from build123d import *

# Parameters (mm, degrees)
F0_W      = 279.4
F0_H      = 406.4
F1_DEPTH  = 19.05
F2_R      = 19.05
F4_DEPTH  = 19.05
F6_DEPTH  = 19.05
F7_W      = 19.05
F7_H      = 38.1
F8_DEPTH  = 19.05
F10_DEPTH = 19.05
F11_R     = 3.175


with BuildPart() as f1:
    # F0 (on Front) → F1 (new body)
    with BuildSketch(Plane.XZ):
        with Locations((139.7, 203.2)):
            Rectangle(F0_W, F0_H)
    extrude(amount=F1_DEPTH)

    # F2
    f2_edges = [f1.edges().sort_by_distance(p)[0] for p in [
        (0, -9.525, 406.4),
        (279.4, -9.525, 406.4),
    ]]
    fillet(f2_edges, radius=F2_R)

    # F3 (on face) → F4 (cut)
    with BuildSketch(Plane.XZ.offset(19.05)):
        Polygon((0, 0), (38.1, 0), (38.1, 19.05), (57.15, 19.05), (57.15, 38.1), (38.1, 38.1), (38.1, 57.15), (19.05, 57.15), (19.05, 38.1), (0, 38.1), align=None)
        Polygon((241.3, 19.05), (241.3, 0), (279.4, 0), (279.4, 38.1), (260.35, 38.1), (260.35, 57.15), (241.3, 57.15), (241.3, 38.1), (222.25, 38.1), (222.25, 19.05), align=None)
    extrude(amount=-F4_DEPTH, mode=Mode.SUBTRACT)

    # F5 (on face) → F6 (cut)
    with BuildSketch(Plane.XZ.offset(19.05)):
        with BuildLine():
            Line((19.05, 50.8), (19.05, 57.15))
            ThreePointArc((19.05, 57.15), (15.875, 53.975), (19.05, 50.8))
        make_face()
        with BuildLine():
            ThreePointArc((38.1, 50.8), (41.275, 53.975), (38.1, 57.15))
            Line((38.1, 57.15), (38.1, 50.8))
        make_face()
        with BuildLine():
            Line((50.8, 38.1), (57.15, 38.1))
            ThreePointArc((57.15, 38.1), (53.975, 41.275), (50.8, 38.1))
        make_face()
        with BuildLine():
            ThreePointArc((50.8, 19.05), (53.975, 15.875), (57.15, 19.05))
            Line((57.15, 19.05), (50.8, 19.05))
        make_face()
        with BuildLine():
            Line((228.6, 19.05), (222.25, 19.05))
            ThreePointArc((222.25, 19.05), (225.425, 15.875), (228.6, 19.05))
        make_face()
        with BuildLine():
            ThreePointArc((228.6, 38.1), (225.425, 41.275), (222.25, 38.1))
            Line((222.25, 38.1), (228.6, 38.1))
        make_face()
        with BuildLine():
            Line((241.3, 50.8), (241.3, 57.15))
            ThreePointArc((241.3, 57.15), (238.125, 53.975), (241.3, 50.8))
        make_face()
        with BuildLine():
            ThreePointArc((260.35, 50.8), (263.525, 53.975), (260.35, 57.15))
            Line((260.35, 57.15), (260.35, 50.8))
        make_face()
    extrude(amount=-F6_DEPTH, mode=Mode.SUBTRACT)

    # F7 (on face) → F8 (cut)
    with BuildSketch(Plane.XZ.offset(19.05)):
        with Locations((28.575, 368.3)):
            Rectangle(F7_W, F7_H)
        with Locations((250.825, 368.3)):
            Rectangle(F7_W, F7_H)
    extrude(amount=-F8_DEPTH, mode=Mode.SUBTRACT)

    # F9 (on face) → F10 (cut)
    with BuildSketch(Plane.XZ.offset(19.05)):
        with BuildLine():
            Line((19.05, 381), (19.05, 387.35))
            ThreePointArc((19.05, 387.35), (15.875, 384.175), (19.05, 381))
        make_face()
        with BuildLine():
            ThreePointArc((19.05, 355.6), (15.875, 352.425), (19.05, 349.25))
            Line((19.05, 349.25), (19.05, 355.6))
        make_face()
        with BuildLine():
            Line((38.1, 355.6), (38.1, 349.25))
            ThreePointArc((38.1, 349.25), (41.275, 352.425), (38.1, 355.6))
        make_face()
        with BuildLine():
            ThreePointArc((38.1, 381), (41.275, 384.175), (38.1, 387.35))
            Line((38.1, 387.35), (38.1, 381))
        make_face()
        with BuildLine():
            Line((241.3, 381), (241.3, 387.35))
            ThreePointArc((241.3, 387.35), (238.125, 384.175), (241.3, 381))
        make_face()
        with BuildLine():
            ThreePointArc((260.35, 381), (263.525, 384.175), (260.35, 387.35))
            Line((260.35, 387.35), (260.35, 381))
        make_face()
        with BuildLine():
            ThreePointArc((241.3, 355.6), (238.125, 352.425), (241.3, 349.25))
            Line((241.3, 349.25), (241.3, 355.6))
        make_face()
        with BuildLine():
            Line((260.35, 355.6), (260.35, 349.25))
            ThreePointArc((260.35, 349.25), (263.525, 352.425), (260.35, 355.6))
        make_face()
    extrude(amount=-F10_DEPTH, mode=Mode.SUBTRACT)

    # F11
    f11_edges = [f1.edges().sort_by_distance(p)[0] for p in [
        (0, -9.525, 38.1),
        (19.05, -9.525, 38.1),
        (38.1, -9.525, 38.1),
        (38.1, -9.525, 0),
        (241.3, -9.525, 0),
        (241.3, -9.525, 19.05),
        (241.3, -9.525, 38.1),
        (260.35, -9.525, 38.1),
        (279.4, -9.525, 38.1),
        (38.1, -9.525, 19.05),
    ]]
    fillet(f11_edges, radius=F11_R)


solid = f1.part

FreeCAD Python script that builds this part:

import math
import FreeCAD as App
import Part
import Sketcher
Q = App.Units.Quantity


def edges_at(feature, points):
    """Names of the edges that pass closest to the given points."""
    edges = feature.Shape.Edges
    near = lambda p: min(range(len(edges)), key=lambda i: edges[i].distToShape(Part.Vertex(*p))[0])
    return sorted({f"Edge{near(p) + 1}" for p in points})

doc = App.newDocument("Part")
body = doc.addObject("PartDesign::Body", "Body")

sketch1 = body.newObject("Sketcher::SketchObject", "Sketch")
sketch1.AttachmentSupport = (doc.getObject("XZ_Plane"), [""])
sketch1.MapMode = "FlatFace"
sketch1.addGeometry(Part.LineSegment(App.Vector(0, 406, 0), App.Vector(0, 0, 0)), False)
sketch1.addGeometry(Part.LineSegment(App.Vector(0, 0, 0), App.Vector(279, 0, 0)), False)
sketch1.addGeometry(Part.LineSegment(App.Vector(279, 0, 0), App.Vector(279, 406, 0)), False)
sketch1.addGeometry(Part.LineSegment(App.Vector(279, 406, 0), App.Vector(0, 406, 0)), False)
sketch1.addConstraint(Sketcher.Constraint("Coincident", 0, 2, 1, 1))
sketch1.addConstraint(Sketcher.Constraint("Coincident", 1, 2, 2, 1))
sketch1.addConstraint(Sketcher.Constraint("Coincident", 2, 2, 3, 1))
sketch1.addConstraint(Sketcher.Constraint("Coincident", 3, 2, 0, 1))
sketch1.addConstraint(Sketcher.Constraint("Vertical", 0))
sketch1.addConstraint(Sketcher.Constraint("Horizontal", 1))
sketch1.addConstraint(Sketcher.Constraint("Vertical", 2))
sketch1.addConstraint(Sketcher.Constraint("Horizontal", 3))
sketch1.addConstraint(Sketcher.Constraint("Coincident", 0, 2, -1, 1))
sketch1.addConstraint(Sketcher.Constraint("DistanceX", 1, 1, 1, 2, Q("11 in")))
sketch1.addConstraint(Sketcher.Constraint("DistanceY", 0, 2, 0, 1, Q("16 in")))
pad1 = body.newObject("PartDesign::Pad", "Pad")
pad1.Profile = sketch1
pad1.Length = Q("0.75 in")
doc.recompute()

fillet = body.newObject("PartDesign::Fillet", "Fillet")
fillet.Base = (pad1, edges_at(pad1, [(0, -9.525, 406.4), (279.4, -9.525, 406.4)]))
fillet.Radius = Q("0.75 in")

sketch2 = body.newObject("Sketcher::SketchObject", "Sketch001")
sketch2.AttachmentSupport = (doc.getObject("XZ_Plane"), [""])
sketch2.MapMode = "FlatFace"
sketch2.AttachmentOffset = App.Placement(App.Vector(0, 0, 0.75 * 25.4), App.Rotation())
sketch2.addGeometry(Part.LineSegment(App.Vector(0, 0, 0), App.Vector(38, 0, 0)), False)
sketch2.addGeometry(Part.LineSegment(App.Vector(38, 0, 0), App.Vector(38, 19, 0)), False)
sketch2.addGeometry(Part.LineSegment(App.Vector(38, 19, 0), App.Vector(57, 19, 0)), False)
sketch2.addGeometry(Part.LineSegment(App.Vector(57, 19, 0), App.Vector(57, 38, 0)), False)
sketch2.addGeometry(Part.LineSegment(App.Vector(57, 38, 0), App.Vector(38, 38, 0)), False)
sketch2.addGeometry(Part.LineSegment(App.Vector(38, 38, 0), App.Vector(38, 57, 0)), False)
sketch2.addGeometry(Part.LineSegment(App.Vector(38, 57, 0), App.Vector(19, 57, 0)), False)
sketch2.addGeometry(Part.LineSegment(App.Vector(19, 57, 0), App.Vector(19, 38, 0)), False)
sketch2.addGeometry(Part.LineSegment(App.Vector(19, 38, 0), App.Vector(0, 38, 0)), False)
sketch2.addGeometry(Part.LineSegment(App.Vector(0, 38, 0), App.Vector(0, 0, 0)), False)
sketch2.addGeometry(Part.LineSegment(App.Vector(241, 19, 0), App.Vector(241, 0, 0)), False)
sketch2.addGeometry(Part.LineSegment(App.Vector(241, 0, 0), App.Vector(279, 0, 0)), False)
sketch2.addGeometry(Part.LineSegment(App.Vector(279, 0, 0), App.Vector(279, 38, 0)), False)
sketch2.addGeometry(Part.LineSegment(App.Vector(279, 38, 0), App.Vector(260, 38, 0)), False)
sketch2.addGeometry(Part.LineSegment(App.Vector(260, 38, 0), App.Vector(260, 57, 0)), False)
sketch2.addGeometry(Part.LineSegment(App.Vector(260, 57, 0), App.Vector(241, 57, 0)), False)
sketch2.addGeometry(Part.LineSegment(App.Vector(241, 57, 0), App.Vector(241, 38, 0)), False)
sketch2.addGeometry(Part.LineSegment(App.Vector(241, 38, 0), App.Vector(222, 38, 0)), False)
sketch2.addGeometry(Part.LineSegment(App.Vector(222, 38, 0), App.Vector(222, 19, 0)), False)
sketch2.addGeometry(Part.LineSegment(App.Vector(222, 19, 0), App.Vector(241, 19, 0)), False)
sketch2.addConstraint(Sketcher.Constraint("Coincident", 0, 2, 1, 1))
sketch2.addConstraint(Sketcher.Constraint("Coincident", 1, 2, 2, 1))
sketch2.addConstraint(Sketcher.Constraint("Coincident", 2, 2, 3, 1))
sketch2.addConstraint(Sketcher.Constraint("Coincident", 3, 2, 4, 1))
sketch2.addConstraint(Sketcher.Constraint("Coincident", 4, 2, 5, 1))
sketch2.addConstraint(Sketcher.Constraint("Coincident", 5, 2, 6, 1))
sketch2.addConstraint(Sketcher.Constraint("Coincident", 6, 2, 7, 1))
sketch2.addConstraint(Sketcher.Constraint("Coincident", 7, 2, 8, 1))
sketch2.addConstraint(Sketcher.Constraint("Coincident", 8, 2, 9, 1))
sketch2.addConstraint(Sketcher.Constraint("Coincident", 9, 2, 0, 1))
sketch2.addConstraint(Sketcher.Constraint("Coincident", 10, 2, 11, 1))
sketch2.addConstraint(Sketcher.Constraint("Coincident", 11, 2, 12, 1))
sketch2.addConstraint(Sketcher.Constraint("Coincident", 12, 2, 13, 1))
sketch2.addConstraint(Sketcher.Constraint("Coincident", 13, 2, 14, 1))
sketch2.addConstraint(Sketcher.Constraint("Coincident", 14, 2, 15, 1))
sketch2.addConstraint(Sketcher.Constraint("Coincident", 15, 2, 16, 1))
sketch2.addConstraint(Sketcher.Constraint("Coincident", 16, 2, 17, 1))
sketch2.addConstraint(Sketcher.Constraint("Coincident", 17, 2, 18, 1))
sketch2.addConstraint(Sketcher.Constraint("Coincident", 18, 2, 19, 1))
sketch2.addConstraint(Sketcher.Constraint("Coincident", 19, 2, 10, 1))
sketch2.addConstraint(Sketcher.Constraint("Horizontal", 0))
sketch2.addConstraint(Sketcher.Constraint("Vertical", 1))
sketch2.addConstraint(Sketcher.Constraint("Horizontal", 2))
sketch2.addConstraint(Sketcher.Constraint("Vertical", 3))
sketch2.addConstraint(Sketcher.Constraint("Horizontal", 4))
sketch2.addConstraint(Sketcher.Constraint("Vertical", 5))
sketch2.addConstraint(Sketcher.Constraint("Horizontal", 6))
sketch2.addConstraint(Sketcher.Constraint("Vertical", 7))
sketch2.addConstraint(Sketcher.Constraint("Horizontal", 8))
sketch2.addConstraint(Sketcher.Constraint("Vertical", 9))
sketch2.addConstraint(Sketcher.Constraint("Vertical", 10))
sketch2.addConstraint(Sketcher.Constraint("Horizontal", 11))
sketch2.addConstraint(Sketcher.Constraint("Vertical", 12))
sketch2.addConstraint(Sketcher.Constraint("Horizontal", 13))
sketch2.addConstraint(Sketcher.Constraint("Vertical", 14))
sketch2.addConstraint(Sketcher.Constraint("Horizontal", 15))
sketch2.addConstraint(Sketcher.Constraint("Vertical", 16))
sketch2.addConstraint(Sketcher.Constraint("Horizontal", 17))
sketch2.addConstraint(Sketcher.Constraint("Vertical", 18))
sketch2.addConstraint(Sketcher.Constraint("Horizontal", 19))
sketch2.addConstraint(Sketcher.Constraint("Coincident", 9, 2, -1, 1))
sketch2.addConstraint(Sketcher.Constraint("PointOnObject", 10, 2, -1))
sketch2.addConstraint(Sketcher.Constraint("Horizontal", 4, 2, 7, 2))
sketch2.addConstraint(Sketcher.Constraint("Horizontal", 8, 2, 12, 2))
sketch2.addConstraint(Sketcher.Constraint("Horizontal", 6, 2, 14, 2))
sketch2.addConstraint(Sketcher.Constraint("Horizontal", 13, 2, 16, 2))
sketch2.addConstraint(Sketcher.Constraint("Horizontal", 2, 2, 18, 2))
sketch2.addConstraint(Sketcher.Constraint("Vertical", 1, 2, 4, 2))
sketch2.addConstraint(Sketcher.Constraint("Vertical", 10, 2, 15, 2))
sketch2.addConstraint(Sketcher.Constraint("Equal", 4, 6))
sketch2.addConstraint(Sketcher.Constraint("Equal", 6, 8))
sketch2.addConstraint(Sketcher.Constraint("Equal", 0, 11))
sketch2.addConstraint(Sketcher.Constraint("Equal", 8, 13))
sketch2.addConstraint(Sketcher.Constraint("Equal", 15, 17))
sketch2.addConstraint(Sketcher.Constraint("Equal", 19, 1))
sketch2.addConstraint(Sketcher.Constraint("Equal", 1, 3))
sketch2.addConstraint(Sketcher.Constraint("Equal", 3, 5))
sketch2.addConstraint(Sketcher.Constraint("DistanceX", 0, 1, 0, 2, Q("1.5 in")))
sketch2.addConstraint(Sketcher.Constraint("DistanceX", -1, 1, 11, 2, Q("11 in")))
pocket1 = body.newObject("PartDesign::Pocket", "Pocket")
pocket1.Profile = sketch2
pocket1.Length = Q("0.75 in")

sketch3 = body.newObject("Sketcher::SketchObject", "Sketch002")
sketch3.AttachmentSupport = (doc.getObject("XZ_Plane"), [""])
sketch3.MapMode = "FlatFace"
sketch3.AttachmentOffset = App.Placement(App.Vector(0, 0, 0.75 * 25.4), App.Rotation())
sketch3.addGeometry(Part.LineSegment(App.Vector(19.1, 50.8, 0), App.Vector(19.1, 57.1, 0)), False)
sketch3.addGeometry(Part.ArcOfCircle(Part.Circle(App.Vector(19.1, 54, 0), App.Vector(0, 0, 1), 3.2), math.radians(90), math.radians(270)), False)
sketch3.addGeometry(Part.ArcOfCircle(Part.Circle(App.Vector(38.1, 54, 0), App.Vector(0, 0, 1), 3.2), math.radians(-90), math.radians(90)), False)
sketch3.addGeometry(Part.LineSegment(App.Vector(38.1, 57.1, 0), App.Vector(38.1, 50.8, 0)), False)
sketch3.addGeometry(Part.LineSegment(App.Vector(50.8, 38.1, 0), App.Vector(57.1, 38.1, 0)), False)
sketch3.addGeometry(Part.ArcOfCircle(Part.Circle(App.Vector(54, 38.1, 0), App.Vector(0, 0, 1), 3.2), math.radians(0), math.radians(180)), False)
sketch3.addGeometry(Part.ArcOfCircle(Part.Circle(App.Vector(54, 19.1, 0), App.Vector(0, 0, 1), 3.2), math.radians(180), math.radians(360)), False)
sketch3.addGeometry(Part.LineSegment(App.Vector(57.1, 19.1, 0), App.Vector(50.8, 19.1, 0)), False)
sketch3.addGeometry(Part.LineSegment(App.Vector(228.6, 19.1, 0), App.Vector(222.2, 19.1, 0)), False)
sketch3.addGeometry(Part.ArcOfCircle(Part.Circle(App.Vector(225.4, 19.1, 0), App.Vector(0, 0, 1), 3.2), math.radians(180), math.radians(360)), False)
sketch3.addGeometry(Part.ArcOfCircle(Part.Circle(App.Vector(225.4, 38.1, 0), App.Vector(0, 0, 1), 3.2), math.radians(0), math.radians(180)), False)
sketch3.addGeometry(Part.LineSegment(App.Vector(222.2, 38.1, 0), App.Vector(228.6, 38.1, 0)), False)
sketch3.addGeometry(Part.LineSegment(App.Vector(241.3, 50.8, 0), App.Vector(241.3, 57.1, 0)), False)
sketch3.addGeometry(Part.ArcOfCircle(Part.Circle(App.Vector(241.3, 54, 0), App.Vector(0, 0, 1), 3.2), math.radians(90), math.radians(270)), False)
sketch3.addGeometry(Part.ArcOfCircle(Part.Circle(App.Vector(260.4, 54, 0), App.Vector(0, 0, 1), 3.2), math.radians(-90), math.radians(90)), False)
sketch3.addGeometry(Part.LineSegment(App.Vector(260.4, 57.1, 0), App.Vector(260.4, 50.8, 0)), False)
sketch3.addConstraint(Sketcher.Constraint("Coincident", 0, 1, 1, 2))
sketch3.addConstraint(Sketcher.Constraint("Coincident", 1, 1, 0, 2))
sketch3.addConstraint(Sketcher.Constraint("Coincident", 2, 1, 3, 2))
sketch3.addConstraint(Sketcher.Constraint("Coincident", 3, 1, 2, 2))
sketch3.addConstraint(Sketcher.Constraint("Coincident", 4, 1, 5, 2))
sketch3.addConstraint(Sketcher.Constraint("Coincident", 5, 1, 4, 2))
sketch3.addConstraint(Sketcher.Constraint("Coincident", 6, 1, 7, 2))
sketch3.addConstraint(Sketcher.Constraint("Coincident", 7, 1, 6, 2))
sketch3.addConstraint(Sketcher.Constraint("Coincident", 8, 1, 9, 2))
sketch3.addConstraint(Sketcher.Constraint("Coincident", 9, 1, 8, 2))
sketch3.addConstraint(Sketcher.Constraint("Coincident", 10, 1, 11, 2))
sketch3.addConstraint(Sketcher.Constraint("Coincident", 11, 1, 10, 2))
sketch3.addConstraint(Sketcher.Constraint("Coincident", 12, 1, 13, 2))
sketch3.addConstraint(Sketcher.Constraint("Coincident", 13, 1, 12, 2))
sketch3.addConstraint(Sketcher.Constraint("Coincident", 14, 1, 15, 2))
sketch3.addConstraint(Sketcher.Constraint("Coincident", 15, 1, 14, 2))
sketch3.addConstraint(Sketcher.Constraint("Vertical", 0))
sketch3.addConstraint(Sketcher.Constraint("Vertical", 3))
sketch3.addConstraint(Sketcher.Constraint("Horizontal", 4))
sketch3.addConstraint(Sketcher.Constraint("Horizontal", 7))
sketch3.addConstraint(Sketcher.Constraint("Horizontal", 8))
sketch3.addConstraint(Sketcher.Constraint("Horizontal", 11))
sketch3.addConstraint(Sketcher.Constraint("Vertical", 12))
sketch3.addConstraint(Sketcher.Constraint("Vertical", 15))
sketch3.addConstraint(Sketcher.Constraint("Equal", 1, 2))
sketch3.addConstraint(Sketcher.Constraint("Equal", 2, 5))
sketch3.addConstraint(Sketcher.Constraint("Equal", 5, 6))
sketch3.addConstraint(Sketcher.Constraint("Equal", 6, 9))
sketch3.addConstraint(Sketcher.Constraint("Equal", 9, 10))
sketch3.addConstraint(Sketcher.Constraint("Equal", 10, 13))
sketch3.addConstraint(Sketcher.Constraint("Equal", 13, 14))
sketch3.addConstraint(Sketcher.Constraint("Horizontal", 1, 3, 2, 3))
sketch3.addConstraint(Sketcher.Constraint("Horizontal", 6, 3, 9, 3))
sketch3.addConstraint(Sketcher.Constraint("Horizontal", 5, 3, 10, 3))
sketch3.addConstraint(Sketcher.Constraint("Horizontal", 2, 3, 13, 3))
sketch3.addConstraint(Sketcher.Constraint("Horizontal", 13, 3, 14, 3))
sketch3.addConstraint(Sketcher.Constraint("Horizontal", 10, 3, 4, 1))
sketch3.addConstraint(Sketcher.Constraint("Horizontal", 9, 3, 6, 1))
sketch3.addConstraint(Sketcher.Constraint("Horizontal", 7, 1, 8, 1))
sketch3.addConstraint(Sketcher.Constraint("Horizontal", 5, 1, 10, 1))
sketch3.addConstraint(Sketcher.Constraint("Vertical", 5, 3, 6, 3))
sketch3.addConstraint(Sketcher.Constraint("Vertical", 9, 3, 10, 3))
sketch3.addConstraint(Sketcher.Constraint("Vertical", 1, 3, 0, 1))
sketch3.addConstraint(Sketcher.Constraint("Vertical", 13, 3, 12, 1))
sketch3.addConstraint(Sketcher.Constraint("DistanceY", -1, 1, 0, 1, Q("2 in")))
sketch3.addConstraint(Sketcher.Constraint("DistanceX", -1, 1, 4, 1, Q("2 in")))
sketch3.addConstraint(Sketcher.Constraint("DistanceX", -1, 1, 8, 1, Q("9 in")))
sketch3.addConstraint(Sketcher.Constraint("Radius", 1, Q("0.125 in")))
sketch3.addConstraint(Sketcher.Constraint("DistanceX", 2, 3, 13, 3, Q("8 in")))
sketch3.addConstraint(Sketcher.Constraint("DistanceX", -1, 1, 2, 3, Q("1.5 in")))
sketch3.addConstraint(Sketcher.Constraint("DistanceY", -1, 1, 5, 3, Q("1.5 in")))
sketch3.addConstraint(Sketcher.Constraint("DistanceX", -1, 1, 2, 1, Q("1.5 in")))
sketch3.addConstraint(Sketcher.Constraint("DistanceY", 6, 3, 1, 1, Q("1.5 in")))
sketch3.addConstraint(Sketcher.Constraint("DistanceX", 9, 1, 14, 3, Q("1.5 in")))
sketch3.addConstraint(Sketcher.Constraint("DistanceX", -1, 1, 1, 3, Q("0.75 in")))
sketch3.addConstraint(Sketcher.Constraint("DistanceX", -1, 1, 14, 1, Q("10.25 in")))
pocket2 = body.newObject("PartDesign::Pocket", "Pocket001")
pocket2.Profile = sketch3
pocket2.Length = Q("0.75 in")

sketch4 = body.newObject("Sketcher::SketchObject", "Sketch003")
sketch4.AttachmentSupport = (doc.getObject("XZ_Plane"), [""])
sketch4.MapMode = "FlatFace"
sketch4.AttachmentOffset = App.Placement(App.Vector(0, 0, 0.75 * 25.4), App.Rotation())
sketch4.addGeometry(Part.LineSegment(App.Vector(19, 387, 0), App.Vector(19, 349, 0)), False)
sketch4.addGeometry(Part.LineSegment(App.Vector(19, 349, 0), App.Vector(38, 349, 0)), False)
sketch4.addGeometry(Part.LineSegment(App.Vector(38, 349, 0), App.Vector(38, 387, 0)), False)
sketch4.addGeometry(Part.LineSegment(App.Vector(38, 387, 0), App.Vector(19, 387, 0)), False)
sketch4.addGeometry(Part.LineSegment(App.Vector(241, 387, 0), App.Vector(241, 349, 0)), False)
sketch4.addGeometry(Part.LineSegment(App.Vector(241, 349, 0), App.Vector(260, 349, 0)), False)
sketch4.addGeometry(Part.LineSegment(App.Vector(260, 349, 0), App.Vector(260, 387, 0)), False)
sketch4.addGeometry(Part.LineSegment(App.Vector(260, 387, 0), App.Vector(241, 387, 0)), False)
sketch4.addConstraint(Sketcher.Constraint("Coincident", 0, 2, 1, 1))
sketch4.addConstraint(Sketcher.Constraint("Coincident", 1, 2, 2, 1))
sketch4.addConstraint(Sketcher.Constraint("Coincident", 2, 2, 3, 1))
sketch4.addConstraint(Sketcher.Constraint("Coincident", 3, 2, 0, 1))
sketch4.addConstraint(Sketcher.Constraint("Coincident", 4, 2, 5, 1))
sketch4.addConstraint(Sketcher.Constraint("Coincident", 5, 2, 6, 1))
sketch4.addConstraint(Sketcher.Constraint("Coincident", 6, 2, 7, 1))
sketch4.addConstraint(Sketcher.Constraint("Coincident", 7, 2, 4, 1))
sketch4.addConstraint(Sketcher.Constraint("Vertical", 0))
sketch4.addConstraint(Sketcher.Constraint("Horizontal", 1))
sketch4.addConstraint(Sketcher.Constraint("Vertical", 2))
sketch4.addConstraint(Sketcher.Constraint("Horizontal", 3))
sketch4.addConstraint(Sketcher.Constraint("Vertical", 4))
sketch4.addConstraint(Sketcher.Constraint("Horizontal", 5))
sketch4.addConstraint(Sketcher.Constraint("Vertical", 6))
sketch4.addConstraint(Sketcher.Constraint("Horizontal", 7))
sketch4.addConstraint(Sketcher.Constraint("Horizontal", 1, 2, 4, 2))
sketch4.addConstraint(Sketcher.Constraint("Horizontal", 3, 2, 6, 2))
sketch4.addConstraint(Sketcher.Constraint("Equal", 3, 5))
sketch4.addConstraint(Sketcher.Constraint("DistanceY", 0, 2, 0, 1, Q("1.5 in")))
sketch4.addConstraint(Sketcher.Constraint("DistanceX", 1, 2, 4, 2, Q("8 in")))
sketch4.addConstraint(Sketcher.Constraint("DistanceX", 1, 1, 1, 2, Q("0.75 in")))
sketch4.addConstraint(Sketcher.Constraint("DistanceX", -1, 1, 1, 2, Q("1.5 in")))
sketch4.addConstraint(Sketcher.Constraint("DistanceY", -1, 1, 0, 2, Q("13.75 in")))
pocket3 = body.newObject("PartDesign::Pocket", "Pocket002")
pocket3.Profile = sketch4
pocket3.Length = Q("0.75 in")

sketch5 = body.newObject("Sketcher::SketchObject", "Sketch004")
sketch5.AttachmentSupport = (doc.getObject("XZ_Plane"), [""])
sketch5.MapMode = "FlatFace"
sketch5.AttachmentOffset = App.Placement(App.Vector(0, 0, 0.75 * 25.4), App.Rotation())
sketch5.addGeometry(Part.LineSegment(App.Vector(19.1, 381, 0), App.Vector(19.1, 387.4, 0)), False)
sketch5.addGeometry(Part.ArcOfCircle(Part.Circle(App.Vector(19.1, 384.2, 0), App.Vector(0, 0, 1), 3.2), math.radians(90), math.radians(270)), False)
sketch5.addGeometry(Part.ArcOfCircle(Part.Circle(App.Vector(19.1, 352.4, 0), App.Vector(0, 0, 1), 3.2), math.radians(90), math.radians(270)), False)
sketch5.addGeometry(Part.LineSegment(App.Vector(19.1, 349.2, 0), App.Vector(19.1, 355.6, 0)), False)
sketch5.addGeometry(Part.LineSegment(App.Vector(38.1, 355.6, 0), App.Vector(38.1, 349.2, 0)), False)
sketch5.addGeometry(Part.ArcOfCircle(Part.Circle(App.Vector(38.1, 352.4, 0), App.Vector(0, 0, 1), 3.2), math.radians(-90), math.radians(90)), False)
sketch5.addGeometry(Part.ArcOfCircle(Part.Circle(App.Vector(38.1, 384.2, 0), App.Vector(0, 0, 1), 3.2), math.radians(-90), math.radians(90)), False)
sketch5.addGeometry(Part.LineSegment(App.Vector(38.1, 387.4, 0), App.Vector(38.1, 381, 0)), False)
sketch5.addGeometry(Part.LineSegment(App.Vector(241.3, 381, 0), App.Vector(241.3, 387.4, 0)), False)
sketch5.addGeometry(Part.ArcOfCircle(Part.Circle(App.Vector(241.3, 384.2, 0), App.Vector(0, 0, 1), 3.2), math.radians(90), math.radians(270)), False)
sketch5.addGeometry(Part.ArcOfCircle(Part.Circle(App.Vector(260.4, 384.2, 0), App.Vector(0, 0, 1), 3.2), math.radians(-90), math.radians(90)), False)
sketch5.addGeometry(Part.LineSegment(App.Vector(260.4, 387.4, 0), App.Vector(260.4, 381, 0)), False)
sketch5.addGeometry(Part.ArcOfCircle(Part.Circle(App.Vector(241.3, 352.4, 0), App.Vector(0, 0, 1), 3.2), math.radians(90), math.radians(270)), False)
sketch5.addGeometry(Part.LineSegment(App.Vector(241.3, 349.2, 0), App.Vector(241.3, 355.6, 0)), False)
sketch5.addGeometry(Part.LineSegment(App.Vector(260.4, 355.6, 0), App.Vector(260.4, 349.2, 0)), False)
sketch5.addGeometry(Part.ArcOfCircle(Part.Circle(App.Vector(260.4, 352.4, 0), App.Vector(0, 0, 1), 3.2), math.radians(-90), math.radians(90)), False)
sketch5.addConstraint(Sketcher.Constraint("Coincident", 0, 1, 1, 2))
sketch5.addConstraint(Sketcher.Constraint("Coincident", 1, 1, 0, 2))
sketch5.addConstraint(Sketcher.Constraint("Coincident", 2, 1, 3, 2))
sketch5.addConstraint(Sketcher.Constraint("Coincident", 3, 1, 2, 2))
sketch5.addConstraint(Sketcher.Constraint("Coincident", 4, 1, 5, 2))
sketch5.addConstraint(Sketcher.Constraint("Coincident", 5, 1, 4, 2))
sketch5.addConstraint(Sketcher.Constraint("Coincident", 6, 1, 7, 2))
sketch5.addConstraint(Sketcher.Constraint("Coincident", 7, 1, 6, 2))
sketch5.addConstraint(Sketcher.Constraint("Coincident", 8, 1, 9, 2))
sketch5.addConstraint(Sketcher.Constraint("Coincident", 9, 1, 8, 2))
sketch5.addConstraint(Sketcher.Constraint("Coincident", 10, 1, 11, 2))
sketch5.addConstraint(Sketcher.Constraint("Coincident", 11, 1, 10, 2))
sketch5.addConstraint(Sketcher.Constraint("Coincident", 12, 1, 13, 2))
sketch5.addConstraint(Sketcher.Constraint("Coincident", 13, 1, 12, 2))
sketch5.addConstraint(Sketcher.Constraint("Coincident", 14, 1, 15, 2))
sketch5.addConstraint(Sketcher.Constraint("Coincident", 15, 1, 14, 2))
sketch5.addConstraint(Sketcher.Constraint("Vertical", 0))
sketch5.addConstraint(Sketcher.Constraint("Vertical", 3))
sketch5.addConstraint(Sketcher.Constraint("Vertical", 4))
sketch5.addConstraint(Sketcher.Constraint("Vertical", 7))
sketch5.addConstraint(Sketcher.Constraint("Vertical", 8))
sketch5.addConstraint(Sketcher.Constraint("Vertical", 11))
sketch5.addConstraint(Sketcher.Constraint("Vertical", 13))
sketch5.addConstraint(Sketcher.Constraint("Vertical", 14))
sketch5.addConstraint(Sketcher.Constraint("Equal", 1, 2))
sketch5.addConstraint(Sketcher.Constraint("Equal", 2, 5))
sketch5.addConstraint(Sketcher.Constraint("Equal", 5, 6))
sketch5.addConstraint(Sketcher.Constraint("Equal", 6, 9))
sketch5.addConstraint(Sketcher.Constraint("Equal", 9, 10))
sketch5.addConstraint(Sketcher.Constraint("Equal", 10, 12))
sketch5.addConstraint(Sketcher.Constraint("Equal", 12, 15))
sketch5.addConstraint(Sketcher.Constraint("Horizontal", 2, 3, 5, 3))
sketch5.addConstraint(Sketcher.Constraint("Horizontal", 1, 3, 6, 3))
sketch5.addConstraint(Sketcher.Constraint("Horizontal", 6, 3, 9, 3))
sketch5.addConstraint(Sketcher.Constraint("Horizontal", 9, 3, 10, 3))
sketch5.addConstraint(Sketcher.Constraint("Horizontal", 5, 3, 12, 3))
sketch5.addConstraint(Sketcher.Constraint("Horizontal", 12, 3, 15, 3))
sketch5.addConstraint(Sketcher.Constraint("Vertical", 1, 3, 2, 3))
sketch5.addConstraint(Sketcher.Constraint("Vertical", 5, 3, 6, 3))
sketch5.addConstraint(Sketcher.Constraint("Vertical", 9, 3, 12, 3))
sketch5.addConstraint(Sketcher.Constraint("Vertical", 10, 3, 15, 3))
sketch5.addConstraint(Sketcher.Constraint("Vertical", 2, 3, 0, 1))
sketch5.addConstraint(Sketcher.Constraint("Vertical", 1, 1, 2, 1))
sketch5.addConstraint(Sketcher.Constraint("Vertical", 6, 3, 4, 1))
sketch5.addConstraint(Sketcher.Constraint("Vertical", 5, 1, 6, 1))
sketch5.addConstraint(Sketcher.Constraint("Vertical", 12, 3, 8, 1))
sketch5.addConstraint(Sketcher.Constraint("Vertical", 15, 3, 10, 1))
sketch5.addConstraint(Sketcher.Constraint("Vertical", 9, 1, 12, 1))
sketch5.addConstraint(Sketcher.Constraint("Vertical", 11, 1, 14, 1))
sketch5.addConstraint(Sketcher.Constraint("DistanceY", -1, 1, 0, 1, Q("15 in")))
sketch5.addConstraint(Sketcher.Constraint("DistanceY", -1, 1, 2, 1, Q("14 in")))
sketch5.addConstraint(Sketcher.Constraint("Radius", 1, Q("0.125 in")))
sketch5.addConstraint(Sketcher.Constraint("DistanceX", 6, 3, 9, 3, Q("8 in")))
sketch5.addConstraint(Sketcher.Constraint("DistanceX", -1, 1, 5, 3, Q("1.5 in")))
sketch5.addConstraint(Sketcher.Constraint("DistanceX", 1, 3, 10, 3, Q("9.5 in")))
sketch5.addConstraint(Sketcher.Constraint("DistanceX", -1, 1, 1, 3, Q("0.75 in")))
pocket4 = body.newObject("PartDesign::Pocket", "Pocket003")
pocket4.Profile = sketch5
pocket4.Length = Q("0.75 in")
doc.recompute()

fillet2 = body.newObject("PartDesign::Fillet", "Fillet001")
fillet2.Base = (pocket4, edges_at(pocket4, [
    (0, -9.525, 38.1),
    (19.05, -9.525, 38.1),
    (38.1, -9.525, 38.1),
    (38.1, -9.525, 0),
    (241.3, -9.525, 0),
    (241.3, -9.525, 19.05),
    (241.3, -9.525, 38.1),
    (260.35, -9.525, 38.1),
    (279.4, -9.525, 38.1),
    (38.1, -9.525, 19.05),
]))
fillet2.Radius = Q("0.125 in")

doc.recompute()
